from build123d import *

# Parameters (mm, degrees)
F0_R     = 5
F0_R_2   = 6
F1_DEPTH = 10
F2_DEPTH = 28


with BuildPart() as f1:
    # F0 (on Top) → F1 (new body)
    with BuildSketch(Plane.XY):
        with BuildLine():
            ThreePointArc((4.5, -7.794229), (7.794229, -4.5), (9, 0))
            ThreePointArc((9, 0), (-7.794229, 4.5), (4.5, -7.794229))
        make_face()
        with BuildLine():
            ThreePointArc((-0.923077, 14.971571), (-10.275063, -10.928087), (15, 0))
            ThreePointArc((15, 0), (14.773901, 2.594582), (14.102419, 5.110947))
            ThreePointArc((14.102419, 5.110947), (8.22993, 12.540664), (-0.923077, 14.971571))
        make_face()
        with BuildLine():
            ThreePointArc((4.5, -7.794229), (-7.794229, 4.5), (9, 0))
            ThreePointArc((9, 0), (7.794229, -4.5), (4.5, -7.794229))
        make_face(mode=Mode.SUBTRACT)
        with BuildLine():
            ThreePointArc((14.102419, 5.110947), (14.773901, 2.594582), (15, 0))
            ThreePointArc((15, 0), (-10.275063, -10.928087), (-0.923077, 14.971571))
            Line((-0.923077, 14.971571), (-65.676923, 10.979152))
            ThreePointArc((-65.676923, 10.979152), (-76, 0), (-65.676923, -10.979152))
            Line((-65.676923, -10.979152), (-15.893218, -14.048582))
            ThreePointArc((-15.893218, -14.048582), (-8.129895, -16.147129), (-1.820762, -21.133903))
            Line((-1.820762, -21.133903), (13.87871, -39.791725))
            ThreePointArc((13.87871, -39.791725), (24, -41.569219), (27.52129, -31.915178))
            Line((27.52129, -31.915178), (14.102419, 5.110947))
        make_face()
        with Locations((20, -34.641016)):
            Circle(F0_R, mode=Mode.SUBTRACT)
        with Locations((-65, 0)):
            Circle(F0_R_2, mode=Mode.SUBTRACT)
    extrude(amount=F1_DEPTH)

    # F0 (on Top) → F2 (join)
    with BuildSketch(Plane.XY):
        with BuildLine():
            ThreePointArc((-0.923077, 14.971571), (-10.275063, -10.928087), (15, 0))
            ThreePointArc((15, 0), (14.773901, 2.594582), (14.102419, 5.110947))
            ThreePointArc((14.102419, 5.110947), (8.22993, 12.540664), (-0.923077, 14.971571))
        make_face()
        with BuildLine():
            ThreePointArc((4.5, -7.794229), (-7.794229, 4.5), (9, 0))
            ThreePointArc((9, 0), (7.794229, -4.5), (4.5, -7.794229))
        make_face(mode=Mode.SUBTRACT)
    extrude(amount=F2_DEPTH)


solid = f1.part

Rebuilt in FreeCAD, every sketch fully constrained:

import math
import FreeCAD as App
import Part
import Sketcher
from FreeCAD import Vector
Q = App.Units.Quantity

doc = App.newDocument("Part")
body = doc.addObject("PartDesign::Body", "Body")

sketch1 = body.newObject("Sketcher::SketchObject", "Sketch")
sketch1.AttachmentSupport = (doc.getObject("XY_Plane"), [""])
sketch1.MapMode = "FlatFace"
sketch1.addGeometry(Part.ArcOfCircle(Part.Circle(Vector(-0.000001, 0, 0), Vector(0, 0, 1), 15.000001), math.radians(19.921344), math.radians(93.528121)), False)
sketch1.addGeometry(Part.LineSegment(Vector(-0.923077, 14.971571, 0), Vector(-65.676923, 10.979152, 0)), False)
sketch1.addGeometry(Part.ArcOfCircle(Part.Circle(Vector(-65, 0, 0), Vector(0, 0, 1), 11), math.radians(93.528124), math.radians(266.471876)), False)
sketch1.addGeometry(Part.LineSegment(Vector(-65.676923, -10.979152, 0), Vector(-15.893218, -14.048582, 0)), False)
sketch1.addGeometry(Part.ArcOfCircle(Part.Circle(Vector(-17.123985, -34.010671, 0), Vector(0, 0, 1), 19.999994), math.radians(40.078651), math.radians(86.471883)), False)
sketch1.addGeometry(Part.LineSegment(Vector(-1.820762, -21.133903, 0), Vector(13.87871, -39.791725, 0)), False)
sketch1.addGeometry(Part.ArcOfCircle(Part.Circle(Vector(20, -34.641016, 0), Vector(0, 0, 1), 8), math.radians(-139.921343), math.radians(19.921342)), False)
sketch1.addGeometry(Part.LineSegment(Vector(27.52129, -31.915178, 0), Vector(14.102419, 5.110947, 0)), False)
sketch1.addGeometry(Part.Circle(Vector(20, -34.641016, 0), Vector(0, 0, 1), 5), False)
sketch1.addGeometry(Part.Circle(Vector(-65, 0, 0), Vector(0, 0, 1), 6), False)
sketch1.addGeometry(Part.ArcOfCircle(Part.Circle(Vector(0.000001, -0.000001, 0), Vector(0, 0, 1), 8.999999), math.radians(-60.000003), math.radians(0.000006)), False)
sketch1.addGeometry(Part.ArcOfCircle(Part.Circle(Vector(0, 0, 0), Vector(0, 0, 1), 9), math.radians(0.000001), math.radians(300.000001)), False)
sketch1.addConstraint(Sketcher.Constraint("Coincident", 0, 2, 1, 1))
sketch1.addConstraint(Sketcher.Constraint("Coincident", 1, 2, 2, 1))
sketch1.addConstraint(Sketcher.Constraint("Coincident", 2, 2, 3, 1))
sketch1.addConstraint(Sketcher.Constraint("Coincident", 3, 2, 4, 2))
sketch1.addConstraint(Sketcher.Constraint("Coincident", 4, 1, 5, 1))
sketch1.addConstraint(Sketcher.Constraint("Coincident", 5, 2, 6, 1))
sketch1.addConstraint(Sketcher.Constraint("Coincident", 6, 2, 7, 1))
sketch1.addConstraint(Sketcher.Constraint("Coincident", 7, 2, 0, 1))
sketch1.addConstraint(Sketcher.Constraint("Coincident", 10, 1, 11, 2))
sketch1.addConstraint(Sketcher.Constraint("Coincident", 11, 1, 10, 2))
sketch1.addConstraint(Sketcher.Constraint("Coincident", 0, 3, -1, 1))
sketch1.addConstraint(Sketcher.Constraint("Coincident", 10, 3, -1, 1))
sketch1.addConstraint(Sketcher.Constraint("Coincident", 8, 3, 6, 3))
sketch1.addConstraint(Sketcher.Constraint("Coincident", 9, 3, 2, 3))
sketch1.addConstraint(Sketcher.Constraint("PointOnObject", 2, 3, -1))
sketch1.addConstraint(Sketcher.Constraint("PointOnObject", 11, 1, -1))
sketch1.addConstraint(Sketcher.Constraint("Diameter", 8, Q("10 mm")))
sketch1.addConstraint(Sketcher.Constraint("Diameter", 9, Q("12 mm")))
sketch1.addConstraint(Sketcher.Constraint("Radius", 0, Q("15.000001 mm")))
sketch1.addConstraint(Sketcher.Constraint("Radius", 2, Q("11 mm")))
sketch1.addConstraint(Sketcher.Constraint("Radius", 6, Q("8 mm")))
sketch1.addConstraint(Sketcher.Constraint("Radius", 10, Q("8.999999 mm")))
sketch1.addConstraint(Sketcher.Constraint("Radius", 11, Q("9 mm")))
sketch1.addConstraint(Sketcher.Constraint("DistanceX", 2, 3, -1, 1, Q("65 mm")))
sketch1.addConstraint(Sketcher.Constraint("DistanceX", -1, 1, 6, 3, Q("20 mm")))
sketch1.addConstraint(Sketcher.Constraint("DistanceX", -1, 1, 10, 1, Q("4.5 mm")))
sketch1.addConstraint(Sketcher.Constraint("Radius", 4, Q("19.999994 mm")))
sketch1.addConstraint(Sketcher.Constraint("Distance", 3, Q("49.878239 mm")))
sketch1.addConstraint(Sketcher.Constraint("Distance", 5, Q("24.38417 mm")))
sketch1.addConstraint(Sketcher.Constraint("DistanceY", 4, 3, -1, 1, Q("34.010671 mm")))
sketch1.addConstraint(Sketcher.Constraint("DistanceY", -1, 1, 0, 2, Q("14.971571 mm")))
sketch1.addConstraint(Sketcher.Constraint("DistanceY", -1, 1, 1, 2, Q("10.979152 mm")))
sketch1.addConstraint(Sketcher.Constraint("DistanceY", 2, 2, -1, 1, Q("10.979152 mm")))
sketch1.addConstraint(Sketcher.Constraint("DistanceX", 4, 1, -1, 1, Q("1.820762 mm")))
sketch1.addConstraint(Sketcher.Constraint("DistanceX", -1, 1, 5, 2, Q("13.87871 mm")))
sketch1.addConstraint(Sketcher.Constraint("DistanceX", -1, 1, 6, 2, Q("27.52129 mm")))
sketch1.addConstraint(Sketcher.Constraint("DistanceY", 6, 2, -1, 1, Q("31.915178 mm")))
sketch1.addConstraint(Sketcher.Constraint("DistanceX", -1, 1, 7, 2, Q("14.102419 mm")))
pad1 = body.newObject("PartDesign::Pad", "Pad")
pad1.Profile = sketch1
pad1.Length = 10

sketch2 = body.newObject("Sketcher::SketchObject", "Sketch001")
sketch2.AttachmentSupport = (doc.getObject("XY_Plane"), [""])
sketch2.MapMode = "FlatFace"
sketch2.addGeometry(Part.ArcOfCircle(Part.Circle(Vector(0, 0, 0), Vector(0, 0, 1), 15), math.radians(94), math.radians(360)), False)
sketch2.addGeometry(Part.ArcOfCircle(Part.Circle(Vector(0, 0, 0), Vector(0, 0, 1), 15), math.radians(0), math.radians(19.92)), False)
sketch2.addGeometry(Part.ArcOfCircle(Part.Circle(Vector(0, 0, 0), Vector(0, 0, 1), 15), math.radians(20), math.radians(94)), False)
sketch2.addGeometry(Part.ArcOfCircle(Part.Circle(Vector(0, 0, 0), Vector(0, 0, 1), 9), math.radians(-60), math.radians(0)), False)
sketch2.addGeometry(Part.ArcOfCircle(Part.Circle(Vector(0, 0, 0), Vector(0, 0, 1), 9), math.radians(0), math.radians(300)), False)
sketch2.addConstraint(Sketcher.Constraint("Tangent", 0, 2, 1, 1))
sketch2.addConstraint(Sketcher.Constraint("Tangent", 1, 2, 2, 1))
sketch2.addConstraint(Sketcher.Constraint("Tangent", 2, 2, 0, 1))
sketch2.addConstraint(Sketcher.Constraint("Tangent", 3, 1, 4, 2))
sketch2.addConstraint(Sketcher.Constraint("Coincident", 4, 1, 3, 2))
sketch2.addConstraint(Sketcher.Constraint("Coincident", 0, 3, -1, 1))
sketch2.addConstraint(Sketcher.Constraint("Coincident", 3, 3, -1, 1))
sketch2.addConstraint(Sketcher.Constraint("PointOnObject", 0, 2, -1))
sketch2.addConstraint(Sketcher.Constraint("PointOnObject", 4, 1, -1))
sketch2.addConstraint(Sketcher.Constraint("Radius", 0, Q("15 mm")))
sketch2.addConstraint(Sketcher.Constraint("Radius", 3, Q("8.999999 mm")))
sketch2.addConstraint(Sketcher.Constraint("DistanceX", -1, 1, 3, 1, Q("4.5 mm")))
sketch2.addConstraint(Sketcher.Constraint("DistanceX", -1, 1, 1, 2, Q("14.102419 mm")))
sketch2.addConstraint(Sketcher.Constraint("DistanceY", -1, 1, 2, 2, Q("14.971571 mm")))
pad2 = body.newObject("PartDesign::Pad", "Pad001")
pad2.Profile = sketch2
pad2.Length = 28

doc.recompute()
